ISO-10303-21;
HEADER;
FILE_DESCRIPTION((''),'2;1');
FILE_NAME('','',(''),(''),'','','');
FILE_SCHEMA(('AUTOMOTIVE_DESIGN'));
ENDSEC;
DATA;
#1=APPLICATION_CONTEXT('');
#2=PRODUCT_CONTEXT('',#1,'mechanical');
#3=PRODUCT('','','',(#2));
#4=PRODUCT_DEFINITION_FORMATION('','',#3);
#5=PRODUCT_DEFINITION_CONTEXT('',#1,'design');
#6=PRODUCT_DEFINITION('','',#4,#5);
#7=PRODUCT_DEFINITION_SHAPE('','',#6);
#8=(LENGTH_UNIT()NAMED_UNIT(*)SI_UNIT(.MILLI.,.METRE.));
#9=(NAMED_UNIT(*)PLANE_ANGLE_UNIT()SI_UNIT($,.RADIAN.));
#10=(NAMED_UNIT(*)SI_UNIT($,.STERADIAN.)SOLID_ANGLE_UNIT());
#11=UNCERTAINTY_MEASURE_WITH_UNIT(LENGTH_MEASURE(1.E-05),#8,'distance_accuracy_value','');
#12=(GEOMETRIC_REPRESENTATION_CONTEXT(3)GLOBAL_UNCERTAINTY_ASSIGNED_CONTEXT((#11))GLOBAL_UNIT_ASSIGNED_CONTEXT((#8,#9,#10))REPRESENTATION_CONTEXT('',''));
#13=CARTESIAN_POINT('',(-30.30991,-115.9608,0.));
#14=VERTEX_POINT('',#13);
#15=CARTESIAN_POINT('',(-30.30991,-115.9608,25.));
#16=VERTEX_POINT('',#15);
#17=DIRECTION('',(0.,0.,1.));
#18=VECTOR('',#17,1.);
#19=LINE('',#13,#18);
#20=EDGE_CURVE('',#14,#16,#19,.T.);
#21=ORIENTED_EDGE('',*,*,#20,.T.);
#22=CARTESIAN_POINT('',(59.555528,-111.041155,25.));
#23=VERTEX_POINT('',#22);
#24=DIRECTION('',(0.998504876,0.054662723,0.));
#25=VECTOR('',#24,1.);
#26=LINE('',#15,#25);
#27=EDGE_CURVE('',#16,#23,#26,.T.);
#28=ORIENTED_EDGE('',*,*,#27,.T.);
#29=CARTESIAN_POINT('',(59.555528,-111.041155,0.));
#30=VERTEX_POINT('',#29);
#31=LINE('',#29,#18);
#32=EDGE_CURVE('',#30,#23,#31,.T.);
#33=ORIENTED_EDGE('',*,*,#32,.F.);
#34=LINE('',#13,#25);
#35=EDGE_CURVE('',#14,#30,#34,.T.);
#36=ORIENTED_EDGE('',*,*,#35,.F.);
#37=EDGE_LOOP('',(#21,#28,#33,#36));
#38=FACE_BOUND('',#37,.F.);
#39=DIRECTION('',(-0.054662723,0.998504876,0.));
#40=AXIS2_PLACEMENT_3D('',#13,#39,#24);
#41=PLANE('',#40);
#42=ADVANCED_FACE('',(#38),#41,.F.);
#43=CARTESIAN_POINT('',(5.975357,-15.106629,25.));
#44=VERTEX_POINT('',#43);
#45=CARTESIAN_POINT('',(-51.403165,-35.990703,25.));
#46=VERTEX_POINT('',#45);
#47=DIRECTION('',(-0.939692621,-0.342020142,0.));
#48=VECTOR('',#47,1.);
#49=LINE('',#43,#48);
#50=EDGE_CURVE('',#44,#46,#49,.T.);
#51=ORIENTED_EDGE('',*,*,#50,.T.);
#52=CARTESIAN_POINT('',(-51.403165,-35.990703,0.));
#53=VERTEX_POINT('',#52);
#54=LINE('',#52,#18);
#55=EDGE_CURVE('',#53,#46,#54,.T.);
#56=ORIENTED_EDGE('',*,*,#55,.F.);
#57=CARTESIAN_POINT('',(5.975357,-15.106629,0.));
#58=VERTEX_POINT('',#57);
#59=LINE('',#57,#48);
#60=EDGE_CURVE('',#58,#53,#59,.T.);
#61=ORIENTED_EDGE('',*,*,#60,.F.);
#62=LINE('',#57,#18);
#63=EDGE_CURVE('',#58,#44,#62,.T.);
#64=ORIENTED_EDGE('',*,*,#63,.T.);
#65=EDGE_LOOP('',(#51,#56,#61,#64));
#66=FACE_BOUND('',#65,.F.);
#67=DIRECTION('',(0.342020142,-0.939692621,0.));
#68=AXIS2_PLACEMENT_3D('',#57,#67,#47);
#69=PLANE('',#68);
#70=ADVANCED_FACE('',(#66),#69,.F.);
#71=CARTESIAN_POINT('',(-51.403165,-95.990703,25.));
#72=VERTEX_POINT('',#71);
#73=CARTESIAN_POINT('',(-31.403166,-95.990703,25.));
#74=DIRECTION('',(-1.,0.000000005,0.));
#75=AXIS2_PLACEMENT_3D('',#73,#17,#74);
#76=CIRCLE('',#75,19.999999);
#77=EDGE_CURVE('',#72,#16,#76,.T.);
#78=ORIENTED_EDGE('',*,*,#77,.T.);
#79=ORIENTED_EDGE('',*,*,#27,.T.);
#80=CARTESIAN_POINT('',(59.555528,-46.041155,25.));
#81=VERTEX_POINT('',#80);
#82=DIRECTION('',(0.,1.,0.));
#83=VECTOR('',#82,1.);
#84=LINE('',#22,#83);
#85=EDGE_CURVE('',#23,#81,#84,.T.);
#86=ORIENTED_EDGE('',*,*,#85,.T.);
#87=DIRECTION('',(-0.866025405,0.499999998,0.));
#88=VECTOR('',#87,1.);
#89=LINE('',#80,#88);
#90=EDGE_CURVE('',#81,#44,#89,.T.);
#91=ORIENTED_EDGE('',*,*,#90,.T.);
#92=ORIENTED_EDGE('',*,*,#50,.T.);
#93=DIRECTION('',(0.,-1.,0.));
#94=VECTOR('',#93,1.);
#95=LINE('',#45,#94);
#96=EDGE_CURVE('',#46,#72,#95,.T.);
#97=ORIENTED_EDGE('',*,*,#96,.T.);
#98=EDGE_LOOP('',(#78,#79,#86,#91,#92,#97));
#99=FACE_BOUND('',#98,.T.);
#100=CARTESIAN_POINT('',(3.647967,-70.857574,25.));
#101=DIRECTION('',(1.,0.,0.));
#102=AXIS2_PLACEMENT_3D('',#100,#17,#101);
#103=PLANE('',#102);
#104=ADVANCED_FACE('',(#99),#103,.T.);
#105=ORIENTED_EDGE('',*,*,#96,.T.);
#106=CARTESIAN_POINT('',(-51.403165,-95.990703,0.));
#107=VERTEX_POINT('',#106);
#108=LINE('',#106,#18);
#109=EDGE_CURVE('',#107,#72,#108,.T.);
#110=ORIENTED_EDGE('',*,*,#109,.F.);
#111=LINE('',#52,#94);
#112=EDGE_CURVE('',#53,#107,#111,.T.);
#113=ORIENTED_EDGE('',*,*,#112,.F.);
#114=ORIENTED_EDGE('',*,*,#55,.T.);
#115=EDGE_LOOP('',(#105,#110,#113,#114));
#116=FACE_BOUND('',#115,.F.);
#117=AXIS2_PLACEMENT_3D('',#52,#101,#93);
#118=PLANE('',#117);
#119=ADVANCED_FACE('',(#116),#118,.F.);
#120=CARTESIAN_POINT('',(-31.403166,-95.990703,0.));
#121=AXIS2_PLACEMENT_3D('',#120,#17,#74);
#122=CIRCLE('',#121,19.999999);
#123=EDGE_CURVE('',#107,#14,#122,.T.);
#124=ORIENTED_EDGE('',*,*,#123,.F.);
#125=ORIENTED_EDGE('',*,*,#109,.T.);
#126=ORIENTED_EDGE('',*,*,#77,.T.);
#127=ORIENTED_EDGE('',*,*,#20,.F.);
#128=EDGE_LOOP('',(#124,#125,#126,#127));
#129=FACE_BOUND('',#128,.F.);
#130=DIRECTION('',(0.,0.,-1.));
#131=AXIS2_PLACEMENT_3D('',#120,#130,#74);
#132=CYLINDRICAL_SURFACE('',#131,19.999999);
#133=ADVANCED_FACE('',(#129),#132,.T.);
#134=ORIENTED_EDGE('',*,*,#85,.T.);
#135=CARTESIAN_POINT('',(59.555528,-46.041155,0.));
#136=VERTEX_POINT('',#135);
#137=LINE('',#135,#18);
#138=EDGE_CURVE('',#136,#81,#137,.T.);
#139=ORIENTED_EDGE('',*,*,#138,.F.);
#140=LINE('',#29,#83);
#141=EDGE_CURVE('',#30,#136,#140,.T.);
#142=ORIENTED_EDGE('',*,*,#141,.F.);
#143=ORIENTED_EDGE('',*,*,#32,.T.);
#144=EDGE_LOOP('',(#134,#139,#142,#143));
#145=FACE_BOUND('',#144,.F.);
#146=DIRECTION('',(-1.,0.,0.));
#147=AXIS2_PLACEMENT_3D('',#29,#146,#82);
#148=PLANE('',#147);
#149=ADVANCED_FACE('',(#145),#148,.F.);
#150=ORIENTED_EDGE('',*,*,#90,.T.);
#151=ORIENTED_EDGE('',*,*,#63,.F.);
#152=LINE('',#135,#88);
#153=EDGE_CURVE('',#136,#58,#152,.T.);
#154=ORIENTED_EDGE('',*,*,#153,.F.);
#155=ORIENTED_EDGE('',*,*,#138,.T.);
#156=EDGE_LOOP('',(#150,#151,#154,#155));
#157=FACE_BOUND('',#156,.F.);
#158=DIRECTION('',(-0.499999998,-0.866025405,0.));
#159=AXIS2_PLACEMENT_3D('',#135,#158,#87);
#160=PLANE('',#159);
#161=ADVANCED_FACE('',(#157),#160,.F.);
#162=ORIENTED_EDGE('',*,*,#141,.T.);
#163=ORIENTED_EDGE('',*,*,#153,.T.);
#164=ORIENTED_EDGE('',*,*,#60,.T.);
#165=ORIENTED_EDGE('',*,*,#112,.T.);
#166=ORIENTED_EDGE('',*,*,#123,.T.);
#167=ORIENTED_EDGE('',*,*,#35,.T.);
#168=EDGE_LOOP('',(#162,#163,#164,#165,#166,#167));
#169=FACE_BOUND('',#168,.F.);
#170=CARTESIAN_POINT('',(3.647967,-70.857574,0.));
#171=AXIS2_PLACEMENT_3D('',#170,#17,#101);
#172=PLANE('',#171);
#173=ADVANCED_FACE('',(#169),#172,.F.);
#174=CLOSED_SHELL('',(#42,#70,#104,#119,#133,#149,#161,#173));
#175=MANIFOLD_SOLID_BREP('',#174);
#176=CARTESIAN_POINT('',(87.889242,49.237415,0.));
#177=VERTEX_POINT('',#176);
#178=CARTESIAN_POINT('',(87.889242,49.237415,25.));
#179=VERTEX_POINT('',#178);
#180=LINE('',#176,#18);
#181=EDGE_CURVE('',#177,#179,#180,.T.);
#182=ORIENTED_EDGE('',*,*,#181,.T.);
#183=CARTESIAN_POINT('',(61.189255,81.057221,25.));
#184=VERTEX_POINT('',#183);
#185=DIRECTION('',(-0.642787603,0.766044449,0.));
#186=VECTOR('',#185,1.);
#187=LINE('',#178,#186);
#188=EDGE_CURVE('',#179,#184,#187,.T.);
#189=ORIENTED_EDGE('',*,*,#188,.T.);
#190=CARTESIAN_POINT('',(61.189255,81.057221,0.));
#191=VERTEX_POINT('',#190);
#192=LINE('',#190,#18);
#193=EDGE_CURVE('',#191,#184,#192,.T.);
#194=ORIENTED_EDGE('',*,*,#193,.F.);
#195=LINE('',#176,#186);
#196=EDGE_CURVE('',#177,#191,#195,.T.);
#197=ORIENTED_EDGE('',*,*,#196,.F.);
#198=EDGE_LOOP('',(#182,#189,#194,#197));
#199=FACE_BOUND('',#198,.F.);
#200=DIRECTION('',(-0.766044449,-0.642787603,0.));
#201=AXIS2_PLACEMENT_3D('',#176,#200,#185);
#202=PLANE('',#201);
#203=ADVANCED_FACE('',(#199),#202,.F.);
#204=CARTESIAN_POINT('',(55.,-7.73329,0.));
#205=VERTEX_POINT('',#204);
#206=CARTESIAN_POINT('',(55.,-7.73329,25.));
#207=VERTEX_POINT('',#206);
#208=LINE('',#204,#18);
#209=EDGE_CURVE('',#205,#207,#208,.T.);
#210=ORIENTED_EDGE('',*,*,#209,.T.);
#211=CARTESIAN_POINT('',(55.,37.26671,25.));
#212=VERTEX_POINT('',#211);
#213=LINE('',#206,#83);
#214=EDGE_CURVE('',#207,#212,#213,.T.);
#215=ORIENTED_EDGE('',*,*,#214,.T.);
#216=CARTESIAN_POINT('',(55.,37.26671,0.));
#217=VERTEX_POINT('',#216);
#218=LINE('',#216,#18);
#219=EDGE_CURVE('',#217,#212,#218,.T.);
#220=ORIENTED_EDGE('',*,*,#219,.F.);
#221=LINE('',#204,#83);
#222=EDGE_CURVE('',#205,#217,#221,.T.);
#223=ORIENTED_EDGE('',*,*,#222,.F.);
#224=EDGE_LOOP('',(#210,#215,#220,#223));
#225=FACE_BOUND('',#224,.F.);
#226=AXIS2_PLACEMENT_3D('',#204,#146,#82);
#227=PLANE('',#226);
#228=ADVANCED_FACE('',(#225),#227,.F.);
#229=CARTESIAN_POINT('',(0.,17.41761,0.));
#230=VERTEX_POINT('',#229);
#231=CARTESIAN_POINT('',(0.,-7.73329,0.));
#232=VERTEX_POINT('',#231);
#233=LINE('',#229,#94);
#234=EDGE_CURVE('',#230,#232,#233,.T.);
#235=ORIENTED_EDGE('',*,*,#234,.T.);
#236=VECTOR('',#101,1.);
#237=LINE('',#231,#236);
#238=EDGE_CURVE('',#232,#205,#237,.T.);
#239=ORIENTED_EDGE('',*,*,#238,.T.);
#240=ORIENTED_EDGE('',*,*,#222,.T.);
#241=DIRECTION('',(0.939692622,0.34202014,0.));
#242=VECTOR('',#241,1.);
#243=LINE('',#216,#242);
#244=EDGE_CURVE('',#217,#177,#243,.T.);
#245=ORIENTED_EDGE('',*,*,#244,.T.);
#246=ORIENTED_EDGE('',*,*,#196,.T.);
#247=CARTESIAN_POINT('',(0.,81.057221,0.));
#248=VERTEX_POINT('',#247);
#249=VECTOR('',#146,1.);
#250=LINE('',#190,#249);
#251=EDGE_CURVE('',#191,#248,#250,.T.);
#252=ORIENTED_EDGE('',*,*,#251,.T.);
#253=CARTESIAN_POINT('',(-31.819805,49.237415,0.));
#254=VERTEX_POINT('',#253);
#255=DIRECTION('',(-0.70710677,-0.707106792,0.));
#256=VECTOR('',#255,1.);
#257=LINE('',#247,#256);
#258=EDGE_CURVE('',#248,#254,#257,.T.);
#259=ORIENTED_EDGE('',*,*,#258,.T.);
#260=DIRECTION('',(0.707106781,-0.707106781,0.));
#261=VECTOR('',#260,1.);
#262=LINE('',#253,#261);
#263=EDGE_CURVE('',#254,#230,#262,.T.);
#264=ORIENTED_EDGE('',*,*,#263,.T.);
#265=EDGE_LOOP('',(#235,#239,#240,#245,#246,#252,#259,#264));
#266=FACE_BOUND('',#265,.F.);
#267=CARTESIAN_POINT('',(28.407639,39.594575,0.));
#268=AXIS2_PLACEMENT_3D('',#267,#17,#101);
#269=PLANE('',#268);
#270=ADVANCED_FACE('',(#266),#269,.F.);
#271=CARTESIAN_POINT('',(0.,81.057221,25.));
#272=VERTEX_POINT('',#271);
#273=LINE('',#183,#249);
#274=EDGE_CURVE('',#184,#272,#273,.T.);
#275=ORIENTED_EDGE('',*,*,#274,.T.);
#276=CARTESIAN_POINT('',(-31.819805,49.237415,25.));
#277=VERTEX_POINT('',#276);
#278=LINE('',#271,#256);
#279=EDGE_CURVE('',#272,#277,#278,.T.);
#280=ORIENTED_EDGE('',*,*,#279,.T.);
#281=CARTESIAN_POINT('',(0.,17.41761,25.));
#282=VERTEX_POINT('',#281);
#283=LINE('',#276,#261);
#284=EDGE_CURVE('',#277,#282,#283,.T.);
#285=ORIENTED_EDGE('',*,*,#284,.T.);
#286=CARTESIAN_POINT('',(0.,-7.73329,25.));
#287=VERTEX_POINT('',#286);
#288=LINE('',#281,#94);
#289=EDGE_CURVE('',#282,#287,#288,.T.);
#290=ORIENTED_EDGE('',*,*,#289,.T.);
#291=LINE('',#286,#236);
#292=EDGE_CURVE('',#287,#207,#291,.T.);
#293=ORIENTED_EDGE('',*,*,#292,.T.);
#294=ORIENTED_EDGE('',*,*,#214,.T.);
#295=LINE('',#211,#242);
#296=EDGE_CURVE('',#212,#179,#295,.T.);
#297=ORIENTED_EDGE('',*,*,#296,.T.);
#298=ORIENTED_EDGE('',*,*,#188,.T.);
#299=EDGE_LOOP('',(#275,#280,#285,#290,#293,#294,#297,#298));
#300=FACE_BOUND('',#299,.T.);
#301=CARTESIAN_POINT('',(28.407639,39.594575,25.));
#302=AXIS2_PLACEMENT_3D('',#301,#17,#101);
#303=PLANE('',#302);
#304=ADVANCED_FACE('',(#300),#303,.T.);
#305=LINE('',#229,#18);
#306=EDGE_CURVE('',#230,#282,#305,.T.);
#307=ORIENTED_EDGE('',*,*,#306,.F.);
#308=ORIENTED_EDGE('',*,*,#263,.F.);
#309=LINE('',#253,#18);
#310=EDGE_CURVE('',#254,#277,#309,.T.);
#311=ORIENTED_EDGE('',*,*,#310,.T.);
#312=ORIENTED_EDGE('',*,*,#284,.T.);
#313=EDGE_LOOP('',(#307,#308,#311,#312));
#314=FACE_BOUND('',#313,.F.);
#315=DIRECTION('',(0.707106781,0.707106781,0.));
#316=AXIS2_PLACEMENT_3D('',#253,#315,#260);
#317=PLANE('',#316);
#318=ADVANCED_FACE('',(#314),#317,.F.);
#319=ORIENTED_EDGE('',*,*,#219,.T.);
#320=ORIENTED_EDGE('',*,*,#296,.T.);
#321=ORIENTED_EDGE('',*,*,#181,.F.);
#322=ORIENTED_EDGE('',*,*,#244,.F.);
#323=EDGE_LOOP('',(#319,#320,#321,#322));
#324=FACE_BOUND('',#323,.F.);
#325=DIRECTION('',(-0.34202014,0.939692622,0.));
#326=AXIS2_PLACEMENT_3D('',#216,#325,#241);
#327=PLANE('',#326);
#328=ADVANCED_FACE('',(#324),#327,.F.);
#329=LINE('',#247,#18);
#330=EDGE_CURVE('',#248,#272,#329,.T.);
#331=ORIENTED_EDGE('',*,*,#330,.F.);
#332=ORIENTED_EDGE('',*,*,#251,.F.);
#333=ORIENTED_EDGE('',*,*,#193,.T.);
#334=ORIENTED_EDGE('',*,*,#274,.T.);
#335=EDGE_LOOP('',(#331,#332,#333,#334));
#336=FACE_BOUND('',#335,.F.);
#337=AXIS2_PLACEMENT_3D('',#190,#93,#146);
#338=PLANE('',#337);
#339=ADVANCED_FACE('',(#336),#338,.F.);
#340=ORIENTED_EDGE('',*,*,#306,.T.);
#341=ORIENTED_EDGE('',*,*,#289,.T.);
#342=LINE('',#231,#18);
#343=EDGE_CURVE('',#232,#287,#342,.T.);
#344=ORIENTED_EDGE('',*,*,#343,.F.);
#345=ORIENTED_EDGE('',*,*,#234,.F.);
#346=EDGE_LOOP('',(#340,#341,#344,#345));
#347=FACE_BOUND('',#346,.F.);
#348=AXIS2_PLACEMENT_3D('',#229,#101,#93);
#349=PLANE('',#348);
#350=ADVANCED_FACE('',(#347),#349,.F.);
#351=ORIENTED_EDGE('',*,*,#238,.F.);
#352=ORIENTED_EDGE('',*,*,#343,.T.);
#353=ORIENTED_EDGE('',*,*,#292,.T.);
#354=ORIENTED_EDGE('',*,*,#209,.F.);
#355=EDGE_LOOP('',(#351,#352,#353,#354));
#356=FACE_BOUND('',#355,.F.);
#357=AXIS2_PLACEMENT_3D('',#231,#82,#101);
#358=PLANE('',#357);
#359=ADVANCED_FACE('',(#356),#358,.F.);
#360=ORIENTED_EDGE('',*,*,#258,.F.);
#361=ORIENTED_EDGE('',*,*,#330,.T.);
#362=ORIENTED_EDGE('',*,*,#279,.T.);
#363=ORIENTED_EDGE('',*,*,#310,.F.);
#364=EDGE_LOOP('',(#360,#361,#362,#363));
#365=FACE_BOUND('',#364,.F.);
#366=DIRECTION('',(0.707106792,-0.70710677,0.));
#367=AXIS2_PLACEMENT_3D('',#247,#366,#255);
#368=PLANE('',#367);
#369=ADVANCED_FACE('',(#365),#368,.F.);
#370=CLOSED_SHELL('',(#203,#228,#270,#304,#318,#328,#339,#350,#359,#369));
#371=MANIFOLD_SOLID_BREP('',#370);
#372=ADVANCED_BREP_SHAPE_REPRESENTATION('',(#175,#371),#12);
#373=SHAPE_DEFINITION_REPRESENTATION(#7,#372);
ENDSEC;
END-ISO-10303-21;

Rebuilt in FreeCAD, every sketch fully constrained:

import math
import FreeCAD as App
import Part
import Sketcher
Q = App.Units.Quantity

doc = App.newDocument("Part")
params = doc.addObject("Spreadsheet::Sheet", "Params")
for row, (alias, value) in enumerate([
    ("sketch1_radius", "19.999999 mm"),
    ("sketch1_width", "55 mm"),
    ("sketch1_height", "60 mm"),
    ("sketch1_height2", "65 mm"),
    ("sketch1_height3", "45 mm"),
    ("pad1_length", "25 mm"),
], start=1):
    params.set(f"A{row}", alias)
    params.set(f"B{row}", "=" + value)
    params.setAlias(f"B{row}", alias)

body = doc.addObject("PartDesign::Body", "Body")
body.AllowCompound = True

# Sketch on XY plane
sketch1 = body.newObject("Sketcher::SketchObject", "Sketch")
sketch1.AttachmentSupport = (doc.getObject("XY_Plane"), [""])
sketch1.MapMode = "FlatFace"
sketch1.addGeometry(Part.LineSegment(App.Vector(-51, -36, 0), App.Vector(-51, -96, 0)), False)
sketch1.addGeometry(Part.ArcOfCircle(Part.Circle(App.Vector(-31, -96, 0), App.Vector(0, 0, 1), 20), math.radians(180), math.radians(273)), False)
sketch1.addGeometry(Part.LineSegment(App.Vector(-30, -116, 0), App.Vector(60, -111, 0)), False)
sketch1.addGeometry(Part.LineSegment(App.Vector(60, -111, 0), App.Vector(60, -46, 0)), False)
sketch1.addGeometry(Part.LineSegment(App.Vector(60, -46, 0), App.Vector(6, -15, 0)), False)
sketch1.addGeometry(Part.LineSegment(App.Vector(6, -15, 0), App.Vector(-51, -36, 0)), False)
sketch1.addGeometry(Part.LineSegment(App.Vector(0, 17, 0), App.Vector(0, -8, 0)), False)
sketch1.addGeometry(Part.LineSegment(App.Vector(0, -8, 0), App.Vector(55, -8, 0)), False)
sketch1.addGeometry(Part.LineSegment(App.Vector(55, -8, 0), App.Vector(55, 37, 0)), False)
sketch1.addGeometry(Part.LineSegment(App.Vector(55, 37, 0), App.Vector(88, 49, 0)), False)
sketch1.addGeometry(Part.LineSegment(App.Vector(88, 49, 0), App.Vector(61, 81, 0)), False)
sketch1.addGeometry(Part.LineSegment(App.Vector(61, 81, 0), App.Vector(0, 81, 0)), False)
sketch1.addGeometry(Part.LineSegment(App.Vector(0, 81, 0), App.Vector(-32, 49, 0)), False)
sketch1.addGeometry(Part.LineSegment(App.Vector(-32, 49, 0), App.Vector(0, 17, 0)), False)
sketch1.addConstraint(Sketcher.Constraint("Tangent", 0, 2, 1, 1))
sketch1.addConstraint(Sketcher.Constraint("Tangent", 1, 2, 2, 1))
sketch1.addConstraint(Sketcher.Constraint("Coincident", 2, 2, 3, 1))
sketch1.addConstraint(Sketcher.Constraint("Coincident", 3, 2, 4, 1))
sketch1.addConstraint(Sketcher.Constraint("Coincident", 4, 2, 5, 1))
sketch1.addConstraint(Sketcher.Constraint("Coincident", 5, 2, 0, 1))
sketch1.addConstraint(Sketcher.Constraint("Coincident", 6, 2, 7, 1))
sketch1.addConstraint(Sketcher.Constraint("Coincident", 7, 2, 8, 1))
sketch1.addConstraint(Sketcher.Constraint("Coincident", 8, 2, 9, 1))
sketch1.addConstraint(Sketcher.Constraint("Coincident", 9, 2, 10, 1))
sketch1.addConstraint(Sketcher.Constraint("Coincident", 10, 2, 11, 1))
sketch1.addConstraint(Sketcher.Constraint("Coincident", 11, 2, 12, 1))
sketch1.addConstraint(Sketcher.Constraint("Coincident", 12, 2, 13, 1))
sketch1.addConstraint(Sketcher.Constraint("Coincident", 13, 2, 6, 1))
sketch1.addConstraint(Sketcher.Constraint("Vertical", 0))
sketch1.addConstraint(Sketcher.Constraint("Vertical", 3))
sketch1.addConstraint(Sketcher.Constraint("Vertical", 6))
sketch1.addConstraint(Sketcher.Constraint("Horizontal", 7))
sketch1.addConstraint(Sketcher.Constraint("Vertical", 8))
sketch1.addConstraint(Sketcher.Constraint("Horizontal", 11))
sketch1.addConstraint(Sketcher.Constraint("PointOnObject", 6, 2, -2))
sketch1.addConstraint(Sketcher.Constraint("PointOnObject", 11, 2, -2))
sketch1.addConstraint(Sketcher.Constraint("Parallel", 5, 9))
sketch1.addConstraint(Sketcher.Constraint("Perpendicular", 12, 13))
sketch1.addConstraint(Sketcher.Constraint("Horizontal", 9, 2, 12, 2))
sketch1.addConstraint(Sketcher.Constraint("Equal", 12, 13))
sketch1.addConstraint(Sketcher.Constraint("Radius", 1, 19.999999))
sketch1.addConstraint(Sketcher.Constraint("DistanceX", 7, 1, 7, 2, 55.0))
sketch1.addConstraint(Sketcher.Constraint("DistanceY", 0, 2, 0, 1, 60.0))
sketch1.addConstraint(Sketcher.Constraint("DistanceY", 3, 1, 3, 2, 65.0))
sketch1.addConstraint(Sketcher.Constraint("DistanceY", 8, 1, 8, 2, 45.0))
sketch1.addConstraint(Sketcher.Constraint("Angle", 4, Q("150 deg")))
sketch1.addConstraint(Sketcher.Constraint("Angle", 5, Q("-160 deg")))
sketch1.addConstraint(Sketcher.Constraint("Angle", 10, Q("129.999999 deg")))
sketch1.addConstraint(Sketcher.Constraint("Distance", 2, 89.999999))
sketch1.addConstraint(Sketcher.Constraint("Distance", 9, 35.0))
sketch1.addConstraint(Sketcher.Constraint("Distance", 12, 45.0))
sketch1.addConstraint(Sketcher.Constraint("DistanceY", 1, 2, -1, 1, 115.9608))
sketch1.addConstraint(Sketcher.Constraint("DistanceX", 1, 2, -1, 1, 30.30991))
sketch1.addConstraint(Sketcher.Constraint("DistanceX", -1, 1, 2, 2, 59.555528))
sketch1.addConstraint(Sketcher.Constraint("DistanceY", 6, 2, -1, 1, 7.73329))
sketch1.setExpression("Constraints[26]", "Params.sketch1_radius")
sketch1.setExpression("Constraints[27]", "Params.sketch1_width")
sketch1.setExpression("Constraints[28]", "Params.sketch1_height")
sketch1.setExpression("Constraints[29]", "Params.sketch1_height2")
sketch1.setExpression("Constraints[30]", "Params.sketch1_height3")
pad1 = body.newObject("PartDesign::Pad", "Pad")
pad1.Profile = sketch1
pad1.setExpression("Length", "Params.pad1_length")

doc.recompute()
